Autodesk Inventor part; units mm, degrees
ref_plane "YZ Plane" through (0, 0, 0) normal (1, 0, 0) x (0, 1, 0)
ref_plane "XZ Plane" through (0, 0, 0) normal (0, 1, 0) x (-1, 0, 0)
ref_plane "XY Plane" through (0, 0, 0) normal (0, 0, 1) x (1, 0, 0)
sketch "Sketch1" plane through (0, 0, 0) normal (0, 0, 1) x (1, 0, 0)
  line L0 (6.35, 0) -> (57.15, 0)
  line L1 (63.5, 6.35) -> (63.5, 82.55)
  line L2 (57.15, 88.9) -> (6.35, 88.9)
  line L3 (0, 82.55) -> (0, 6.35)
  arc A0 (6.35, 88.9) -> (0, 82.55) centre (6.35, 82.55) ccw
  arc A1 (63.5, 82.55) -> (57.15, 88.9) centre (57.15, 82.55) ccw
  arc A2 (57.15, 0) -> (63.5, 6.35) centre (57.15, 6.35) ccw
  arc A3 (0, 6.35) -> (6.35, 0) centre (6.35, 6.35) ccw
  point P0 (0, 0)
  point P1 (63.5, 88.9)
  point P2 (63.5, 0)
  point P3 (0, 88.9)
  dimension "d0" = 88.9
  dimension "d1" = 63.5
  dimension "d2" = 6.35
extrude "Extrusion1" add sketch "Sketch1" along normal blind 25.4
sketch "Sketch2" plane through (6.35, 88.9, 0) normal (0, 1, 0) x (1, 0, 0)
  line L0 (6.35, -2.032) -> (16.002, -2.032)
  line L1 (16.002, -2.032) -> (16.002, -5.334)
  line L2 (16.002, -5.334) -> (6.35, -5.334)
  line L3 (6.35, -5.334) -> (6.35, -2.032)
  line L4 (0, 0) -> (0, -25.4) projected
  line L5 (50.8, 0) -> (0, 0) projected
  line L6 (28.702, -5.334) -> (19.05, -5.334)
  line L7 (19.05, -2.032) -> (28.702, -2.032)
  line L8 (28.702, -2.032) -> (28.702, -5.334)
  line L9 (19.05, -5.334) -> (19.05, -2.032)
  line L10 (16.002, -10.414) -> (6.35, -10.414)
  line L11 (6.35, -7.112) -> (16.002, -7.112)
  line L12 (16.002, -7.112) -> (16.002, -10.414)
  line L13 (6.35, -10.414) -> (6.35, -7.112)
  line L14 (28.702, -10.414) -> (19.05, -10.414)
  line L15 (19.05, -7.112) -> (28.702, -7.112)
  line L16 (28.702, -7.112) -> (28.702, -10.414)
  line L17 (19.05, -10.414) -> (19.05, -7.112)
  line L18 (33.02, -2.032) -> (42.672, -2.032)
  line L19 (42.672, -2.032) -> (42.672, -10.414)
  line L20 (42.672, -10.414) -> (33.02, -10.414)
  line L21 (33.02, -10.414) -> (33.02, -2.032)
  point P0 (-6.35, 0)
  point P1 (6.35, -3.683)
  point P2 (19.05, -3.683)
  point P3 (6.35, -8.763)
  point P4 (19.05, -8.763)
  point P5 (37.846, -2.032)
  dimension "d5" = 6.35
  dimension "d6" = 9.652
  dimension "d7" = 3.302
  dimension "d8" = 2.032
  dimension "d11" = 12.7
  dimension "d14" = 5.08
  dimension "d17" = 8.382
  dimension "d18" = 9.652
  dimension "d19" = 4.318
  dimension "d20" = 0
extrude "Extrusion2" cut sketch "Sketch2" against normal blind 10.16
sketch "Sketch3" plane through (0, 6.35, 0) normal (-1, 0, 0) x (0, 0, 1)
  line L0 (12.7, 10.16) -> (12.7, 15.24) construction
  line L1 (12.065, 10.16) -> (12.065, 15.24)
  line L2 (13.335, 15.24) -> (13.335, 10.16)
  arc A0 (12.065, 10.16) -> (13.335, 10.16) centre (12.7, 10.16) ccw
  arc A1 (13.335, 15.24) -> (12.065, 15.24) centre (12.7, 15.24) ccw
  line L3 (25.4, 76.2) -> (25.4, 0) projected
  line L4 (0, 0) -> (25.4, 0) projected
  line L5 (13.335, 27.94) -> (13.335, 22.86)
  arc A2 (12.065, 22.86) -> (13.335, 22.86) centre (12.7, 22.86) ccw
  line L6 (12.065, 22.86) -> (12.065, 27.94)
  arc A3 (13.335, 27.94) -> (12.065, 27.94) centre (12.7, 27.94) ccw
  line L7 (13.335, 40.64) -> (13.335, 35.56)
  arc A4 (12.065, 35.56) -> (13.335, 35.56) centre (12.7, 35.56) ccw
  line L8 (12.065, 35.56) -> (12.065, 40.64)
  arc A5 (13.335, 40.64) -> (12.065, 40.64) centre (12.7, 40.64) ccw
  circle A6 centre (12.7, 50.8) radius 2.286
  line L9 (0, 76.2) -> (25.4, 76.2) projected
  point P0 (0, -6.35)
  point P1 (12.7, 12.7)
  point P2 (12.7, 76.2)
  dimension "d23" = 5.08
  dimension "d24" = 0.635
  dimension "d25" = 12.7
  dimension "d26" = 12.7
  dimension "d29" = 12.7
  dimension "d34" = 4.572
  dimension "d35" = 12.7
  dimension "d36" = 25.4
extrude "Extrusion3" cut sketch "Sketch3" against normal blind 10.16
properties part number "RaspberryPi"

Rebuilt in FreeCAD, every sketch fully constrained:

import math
import FreeCAD as App
import Part
import Sketcher
Q = App.Units.Quantity


def add_polygon(sketch, points):
    """Adds a closed chain of lines whose ends are joined by coincident constraints."""
    first, n = sketch.GeometryCount, len(points)
    for a, b in zip(points, points[1:] + points[:1]):
        sketch.addGeometry(Part.LineSegment(App.Vector(*a, 0), App.Vector(*b, 0)), False)
    for i in range(n):
        sketch.addConstraint(Sketcher.Constraint("Coincident", first + i, 2, first + (i + 1) % n, 1))

doc = App.newDocument("Part")
params = doc.addObject("Spreadsheet::Sheet", "Params")
for row, (alias, value) in enumerate([
    ("sketch1_radius", "0.25 in"),
    ("pad1_length", "1 in"),
    ("sketch2_width", "0.38 in"),
    ("sketch2_height", "0.13 in"),
    ("sketch2_height2", "0.33 in"),
    ("pocket1_length", "0.4 in"),
    ("sketch3_diameter", "0.18 in"),
    ("sketch3_width", "0.2 in"),
    ("sketch3_radius", "0.025 in"),
    ("pocket2_length", "0.4 in"),
], start=1):
    params.set(f"A{row}", alias)
    params.set(f"B{row}", "=" + value)
    params.setAlias(f"B{row}", alias)

body = doc.addObject("PartDesign::Body", "Body")

sketch1 = body.newObject("Sketcher::SketchObject", "Sketch")
sketch1.AttachmentSupport = (doc.getObject("XY_Plane"), [""])
sketch1.MapMode = "FlatFace"
sketch1.addGeometry(Part.ArcOfCircle(Part.Circle(App.Vector(6, 6, 0), App.Vector(0, 0, 1), 6), math.radians(180), math.radians(270)), False)
sketch1.addGeometry(Part.LineSegment(App.Vector(6, 0, 0), App.Vector(57, 0, 0)), False)
sketch1.addGeometry(Part.ArcOfCircle(Part.Circle(App.Vector(57, 6, 0), App.Vector(0, 0, 1), 6), math.radians(-90), math.radians(0)), False)
sketch1.addGeometry(Part.LineSegment(App.Vector(64, 6, 0), App.Vector(64, 83, 0)), False)
sketch1.addGeometry(Part.ArcOfCircle(Part.Circle(App.Vector(57, 83, 0), App.Vector(0, 0, 1), 6), math.radians(0), math.radians(90)), False)
sketch1.addGeometry(Part.LineSegment(App.Vector(57, 89, 0), App.Vector(6, 89, 0)), False)
sketch1.addGeometry(Part.ArcOfCircle(Part.Circle(App.Vector(6, 83, 0), App.Vector(0, 0, 1), 6), math.radians(90), math.radians(180)), False)
sketch1.addGeometry(Part.LineSegment(App.Vector(0, 83, 0), App.Vector(0, 6, 0)), False)
sketch1.addConstraint(Sketcher.Constraint("Tangent", 0, 2, 1, 1))
sketch1.addConstraint(Sketcher.Constraint("Tangent", 1, 2, 2, 1))
sketch1.addConstraint(Sketcher.Constraint("Tangent", 2, 2, 3, 1))
sketch1.addConstraint(Sketcher.Constraint("Tangent", 3, 2, 4, 1))
sketch1.addConstraint(Sketcher.Constraint("Tangent", 4, 2, 5, 1))
sketch1.addConstraint(Sketcher.Constraint("Tangent", 5, 2, 6, 1))
sketch1.addConstraint(Sketcher.Constraint("Tangent", 6, 2, 7, 1))
sketch1.addConstraint(Sketcher.Constraint("Tangent", 7, 2, 0, 1))
sketch1.addConstraint(Sketcher.Constraint("Horizontal", 1))
sketch1.addConstraint(Sketcher.Constraint("Vertical", 3))
sketch1.addConstraint(Sketcher.Constraint("Horizontal", 5))
sketch1.addConstraint(Sketcher.Constraint("Vertical", 7))
sketch1.addConstraint(Sketcher.Constraint("Equal", 0, 2))
sketch1.addConstraint(Sketcher.Constraint("Equal", 2, 4))
sketch1.addConstraint(Sketcher.Constraint("Equal", 4, 6))
sketch1.addConstraint(Sketcher.Constraint("PointOnObject", 0, 2, -1))
sketch1.addConstraint(Sketcher.Constraint("PointOnObject", 6, 2, -2))
sketch1.addConstraint(Sketcher.Constraint("Radius", 0, Q("0.25 in")))
sketch1.addConstraint(Sketcher.Constraint("DistanceX", -1, 1, 2, 2, Q("2.5 in")))
sketch1.addConstraint(Sketcher.Constraint("DistanceY", -1, 1, 4, 2, Q("3.5 in")))
sketch1.setExpression("Constraints[17]", "Params.sketch1_radius")
pad1 = body.newObject("PartDesign::Pad", "Pad")
pad1.Profile = sketch1
pad1.setExpression("Length", "Params.pad1_length")

sketch2 = body.newObject("Sketcher::SketchObject", "Sketch001")
sketch2.AttachmentSupport = (doc.getObject("XZ_Plane"), [""])
sketch2.MapMode = "FlatFace"
sketch2.AttachmentOffset = App.Placement(App.Vector(0, 0, -3.5 * 25.4), App.Rotation())
add_polygon(sketch2, [(22.4, 2), (12.7, 2), (12.7, 5.3), (22.4, 5.3)])
add_polygon(sketch2, [(25.4, 5.3), (35.1, 5.3), (35.1, 2), (25.4, 2)])
add_polygon(sketch2, [(12.7, 10.4), (22.4, 10.4), (22.4, 7.1), (12.7, 7.1)])
add_polygon(sketch2, [(25.4, 10.4), (35.1, 10.4), (35.1, 7.1), (25.4, 7.1)])
add_polygon(sketch2, [(49, 2), (39.4, 2), (39.4, 10.4), (49, 10.4)])
sketch2.addConstraint(Sketcher.Constraint("Horizontal", 0))
sketch2.addConstraint(Sketcher.Constraint("Vertical", 1))
sketch2.addConstraint(Sketcher.Constraint("Horizontal", 2))
sketch2.addConstraint(Sketcher.Constraint("Vertical", 3))
sketch2.addConstraint(Sketcher.Constraint("Horizontal", 4))
sketch2.addConstraint(Sketcher.Constraint("Vertical", 5))
sketch2.addConstraint(Sketcher.Constraint("Horizontal", 6))
sketch2.addConstraint(Sketcher.Constraint("Vertical", 7))
sketch2.addConstraint(Sketcher.Constraint("Horizontal", 8))
sketch2.addConstraint(Sketcher.Constraint("Vertical", 9))
sketch2.addConstraint(Sketcher.Constraint("Horizontal", 10))
sketch2.addConstraint(Sketcher.Constraint("Vertical", 11))
sketch2.addConstraint(Sketcher.Constraint("Horizontal", 12))
sketch2.addConstraint(Sketcher.Constraint("Vertical", 13))
sketch2.addConstraint(Sketcher.Constraint("Horizontal", 14))
sketch2.addConstraint(Sketcher.Constraint("Vertical", 15))
sketch2.addConstraint(Sketcher.Constraint("Horizontal", 16))
sketch2.addConstraint(Sketcher.Constraint("Vertical", 17))
sketch2.addConstraint(Sketcher.Constraint("Horizontal", 18))
sketch2.addConstraint(Sketcher.Constraint("Vertical", 19))
sketch2.addConstraint(Sketcher.Constraint("Horizontal", 2, 2, 4, 2))
sketch2.addConstraint(Sketcher.Constraint("Horizontal", 3, 2, 5, 2))
sketch2.addConstraint(Sketcher.Constraint("Horizontal", 11, 2, 12, 2))
sketch2.addConstraint(Sketcher.Constraint("Horizontal", 10, 2, 13, 2))
sketch2.addConstraint(Sketcher.Constraint("Horizontal", 6, 2, 16, 2))
sketch2.addConstraint(Sketcher.Constraint("Horizontal", 15, 2, 17, 2))
sketch2.addConstraint(Sketcher.Constraint("Vertical", 3, 2, 8, 2))
sketch2.addConstraint(Sketcher.Constraint("Vertical", 1, 2, 10, 2))
sketch2.addConstraint(Sketcher.Constraint("Vertical", 5, 2, 12, 2))
sketch2.addConstraint(Sketcher.Constraint("Vertical", 7, 2, 14, 2))
sketch2.addConstraint(Sketcher.Constraint("Equal", 2, 4))
sketch2.addConstraint(Sketcher.Constraint("Equal", 14, 16))
sketch2.addConstraint(Sketcher.Constraint("Equal", 7, 9))
sketch2.addConstraint(Sketcher.Constraint("DistanceX", 0, 2, 0, 1, Q("0.38 in")))
sketch2.addConstraint(Sketcher.Constraint("DistanceY", 1, 1, 1, 2, Q("0.13 in")))
sketch2.addConstraint(Sketcher.Constraint("DistanceY", 17, 1, 17, 2, Q("0.33 in")))
sketch2.addConstraint(Sketcher.Constraint("DistanceX", -1, 1, 0, 2, Q("0.5 in")))
sketch2.addConstraint(Sketcher.Constraint("DistanceX", 2, 2, 4, 2, Q("0.5 in")))
sketch2.addConstraint(Sketcher.Constraint("DistanceY", -1, 1, 0, 2, Q("0.08 in")))
sketch2.addConstraint(Sketcher.Constraint("DistanceX", 5, 2, 16, 2, Q("0.17 in")))
sketch2.setExpression("Constraints[53]", "Params.sketch2_width")
sketch2.setExpression("Constraints[54]", "Params.sketch2_height")
sketch2.setExpression("Constraints[55]", "Params.sketch2_height2")
pocket1 = body.newObject("PartDesign::Pocket", "Pocket")
pocket1.Profile = sketch2
pocket1.setExpression("Length", "Params.pocket1_length")
pocket1.Reversed = True

sketch3 = body.newObject("Sketcher::SketchObject", "Sketch002")
sketch3.AttachmentSupport = (doc.getObject("YZ_Plane"), [""])
sketch3.MapMode = "FlatFace"
sketch3.addGeometry(Part.LineSegment(App.Vector(21.6, 12.1, 0), App.Vector(16.5, 12.1, 0)), False)
sketch3.addGeometry(Part.ArcOfCircle(Part.Circle(App.Vector(16.5, 12.7, 0), App.Vector(0, 0, 1), 0.6), math.radians(90), math.radians(270)), False)
sketch3.addGeometry(Part.LineSegment(App.Vector(16.5, 13.3, 0), App.Vector(21.6, 13.3, 0)), False)
sketch3.addGeometry(Part.ArcOfCircle(Part.Circle(App.Vector(21.6, 12.7, 0), App.Vector(0, 0, 1), 0.6), math.radians(-90), math.radians(90)), False)
sketch3.addGeometry(Part.LineSegment(App.Vector(29.2, 13.3, 0), App.Vector(34.3, 13.3, 0)), False)
sketch3.addGeometry(Part.ArcOfCircle(Part.Circle(App.Vector(34.3, 12.7, 0), App.Vector(0, 0, 1), 0.6), math.radians(-90), math.radians(90)), False)
sketch3.addGeometry(Part.LineSegment(App.Vector(34.3, 12.1, 0), App.Vector(29.2, 12.1, 0)), False)
sketch3.addGeometry(Part.ArcOfCircle(Part.Circle(App.Vector(29.2, 12.7, 0), App.Vector(0, 0, 1), 0.6), math.radians(90), math.radians(270)), False)
sketch3.addGeometry(Part.LineSegment(App.Vector(41.9, 13.3, 0), App.Vector(47, 13.3, 0)), False)
sketch3.addGeometry(Part.ArcOfCircle(Part.Circle(App.Vector(47, 12.7, 0), App.Vector(0, 0, 1), 0.6), math.radians(-90), math.radians(90)), False)
sketch3.addGeometry(Part.LineSegment(App.Vector(47, 12.1, 0), App.Vector(41.9, 12.1, 0)), False)
sketch3.addGeometry(Part.ArcOfCircle(Part.Circle(App.Vector(41.9, 12.7, 0), App.Vector(0, 0, 1), 0.6), math.radians(90), math.radians(270)), False)
sketch3.addGeometry(Part.Circle(App.Vector(57.1, 12.7, 0), App.Vector(0, 0, 1), 2.3), False)
sketch3.addConstraint(Sketcher.Constraint("Tangent", 0, 2, 1, 2))
sketch3.addConstraint(Sketcher.Constraint("Tangent", 1, 1, 2, 1))
sketch3.addConstraint(Sketcher.Constraint("Tangent", 2, 2, 3, 2))
sketch3.addConstraint(Sketcher.Constraint("Tangent", 3, 1, 0, 1))
sketch3.addConstraint(Sketcher.Constraint("Tangent", 4, 2, 5, 2))
sketch3.addConstraint(Sketcher.Constraint("Tangent", 5, 1, 6, 1))
sketch3.addConstraint(Sketcher.Constraint("Tangent", 6, 2, 7, 2))
sketch3.addConstraint(Sketcher.Constraint("Tangent", 7, 1, 4, 1))
sketch3.addConstraint(Sketcher.Constraint("Tangent", 8, 2, 9, 2))
sketch3.addConstraint(Sketcher.Constraint("Tangent", 9, 1, 10, 1))
sketch3.addConstraint(Sketcher.Constraint("Tangent", 10, 2, 11, 2))
sketch3.addConstraint(Sketcher.Constraint("Tangent", 11, 1, 8, 1))
sketch3.addConstraint(Sketcher.Constraint("Horizontal", 0))
sketch3.addConstraint(Sketcher.Constraint("Horizontal", 2))
sketch3.addConstraint(Sketcher.Constraint("Horizontal", 4))
sketch3.addConstraint(Sketcher.Constraint("Horizontal", 6))
sketch3.addConstraint(Sketcher.Constraint("Horizontal", 8))
sketch3.addConstraint(Sketcher.Constraint("Horizontal", 10))
sketch3.addConstraint(Sketcher.Constraint("Equal", 3, 5))
sketch3.addConstraint(Sketcher.Constraint("Equal", 7, 9))
sketch3.addConstraint(Sketcher.Constraint("Horizontal", 3, 3, 5, 3))
sketch3.addConstraint(Sketcher.Constraint("Horizontal", 7, 3, 9, 3))
sketch3.addConstraint(Sketcher.Constraint("Horizontal", 11, 3, 12, 3))
sketch3.addConstraint(Sketcher.Constraint("Equal", 2, 4))
sketch3.addConstraint(Sketcher.Constraint("Equal", 6, 8))
sketch3.addConstraint(Sketcher.Constraint("Diameter", 12, Q("0.18 in")))
sketch3.addConstraint(Sketcher.Constraint("DistanceX", 0, 2, 0, 1, Q("0.2 in")))
sketch3.addConstraint(Sketcher.Constraint("Radius", 1, Q("0.025 in")))
sketch3.addConstraint(Sketcher.Constraint("DistanceX", 3, 3, 9, 3, Q("1 in")))
sketch3.addConstraint(Sketcher.Constraint("DistanceY", -1, 1, 1, 3, Q("0.5 in")))
sketch3.addConstraint(Sketcher.Constraint("DistanceX", 3, 3, 5, 3, Q("0.5 in")))
sketch3.addConstraint(Sketcher.Constraint("DistanceX", 9, 3, 12, 3, Q("0.4 in")))
sketch3.addConstraint(Sketcher.Constraint("DistanceX", -1, 1, 1, 3, Q("0.65 in")))
sketch3.setExpression("Constraints[25]", "Params.sketch3_diameter")
sketch3.setExpression("Constraints[26]", "Params.sketch3_width")
sketch3.setExpression("Constraints[27]", "Params.sketch3_radius")
pocket2 = body.newObject("PartDesign::Pocket", "Pocket001")
pocket2.Profile = sketch3
pocket2.setExpression("Length", "Params.pocket2_length")
pocket2.Reversed = True

doc.recompute()
